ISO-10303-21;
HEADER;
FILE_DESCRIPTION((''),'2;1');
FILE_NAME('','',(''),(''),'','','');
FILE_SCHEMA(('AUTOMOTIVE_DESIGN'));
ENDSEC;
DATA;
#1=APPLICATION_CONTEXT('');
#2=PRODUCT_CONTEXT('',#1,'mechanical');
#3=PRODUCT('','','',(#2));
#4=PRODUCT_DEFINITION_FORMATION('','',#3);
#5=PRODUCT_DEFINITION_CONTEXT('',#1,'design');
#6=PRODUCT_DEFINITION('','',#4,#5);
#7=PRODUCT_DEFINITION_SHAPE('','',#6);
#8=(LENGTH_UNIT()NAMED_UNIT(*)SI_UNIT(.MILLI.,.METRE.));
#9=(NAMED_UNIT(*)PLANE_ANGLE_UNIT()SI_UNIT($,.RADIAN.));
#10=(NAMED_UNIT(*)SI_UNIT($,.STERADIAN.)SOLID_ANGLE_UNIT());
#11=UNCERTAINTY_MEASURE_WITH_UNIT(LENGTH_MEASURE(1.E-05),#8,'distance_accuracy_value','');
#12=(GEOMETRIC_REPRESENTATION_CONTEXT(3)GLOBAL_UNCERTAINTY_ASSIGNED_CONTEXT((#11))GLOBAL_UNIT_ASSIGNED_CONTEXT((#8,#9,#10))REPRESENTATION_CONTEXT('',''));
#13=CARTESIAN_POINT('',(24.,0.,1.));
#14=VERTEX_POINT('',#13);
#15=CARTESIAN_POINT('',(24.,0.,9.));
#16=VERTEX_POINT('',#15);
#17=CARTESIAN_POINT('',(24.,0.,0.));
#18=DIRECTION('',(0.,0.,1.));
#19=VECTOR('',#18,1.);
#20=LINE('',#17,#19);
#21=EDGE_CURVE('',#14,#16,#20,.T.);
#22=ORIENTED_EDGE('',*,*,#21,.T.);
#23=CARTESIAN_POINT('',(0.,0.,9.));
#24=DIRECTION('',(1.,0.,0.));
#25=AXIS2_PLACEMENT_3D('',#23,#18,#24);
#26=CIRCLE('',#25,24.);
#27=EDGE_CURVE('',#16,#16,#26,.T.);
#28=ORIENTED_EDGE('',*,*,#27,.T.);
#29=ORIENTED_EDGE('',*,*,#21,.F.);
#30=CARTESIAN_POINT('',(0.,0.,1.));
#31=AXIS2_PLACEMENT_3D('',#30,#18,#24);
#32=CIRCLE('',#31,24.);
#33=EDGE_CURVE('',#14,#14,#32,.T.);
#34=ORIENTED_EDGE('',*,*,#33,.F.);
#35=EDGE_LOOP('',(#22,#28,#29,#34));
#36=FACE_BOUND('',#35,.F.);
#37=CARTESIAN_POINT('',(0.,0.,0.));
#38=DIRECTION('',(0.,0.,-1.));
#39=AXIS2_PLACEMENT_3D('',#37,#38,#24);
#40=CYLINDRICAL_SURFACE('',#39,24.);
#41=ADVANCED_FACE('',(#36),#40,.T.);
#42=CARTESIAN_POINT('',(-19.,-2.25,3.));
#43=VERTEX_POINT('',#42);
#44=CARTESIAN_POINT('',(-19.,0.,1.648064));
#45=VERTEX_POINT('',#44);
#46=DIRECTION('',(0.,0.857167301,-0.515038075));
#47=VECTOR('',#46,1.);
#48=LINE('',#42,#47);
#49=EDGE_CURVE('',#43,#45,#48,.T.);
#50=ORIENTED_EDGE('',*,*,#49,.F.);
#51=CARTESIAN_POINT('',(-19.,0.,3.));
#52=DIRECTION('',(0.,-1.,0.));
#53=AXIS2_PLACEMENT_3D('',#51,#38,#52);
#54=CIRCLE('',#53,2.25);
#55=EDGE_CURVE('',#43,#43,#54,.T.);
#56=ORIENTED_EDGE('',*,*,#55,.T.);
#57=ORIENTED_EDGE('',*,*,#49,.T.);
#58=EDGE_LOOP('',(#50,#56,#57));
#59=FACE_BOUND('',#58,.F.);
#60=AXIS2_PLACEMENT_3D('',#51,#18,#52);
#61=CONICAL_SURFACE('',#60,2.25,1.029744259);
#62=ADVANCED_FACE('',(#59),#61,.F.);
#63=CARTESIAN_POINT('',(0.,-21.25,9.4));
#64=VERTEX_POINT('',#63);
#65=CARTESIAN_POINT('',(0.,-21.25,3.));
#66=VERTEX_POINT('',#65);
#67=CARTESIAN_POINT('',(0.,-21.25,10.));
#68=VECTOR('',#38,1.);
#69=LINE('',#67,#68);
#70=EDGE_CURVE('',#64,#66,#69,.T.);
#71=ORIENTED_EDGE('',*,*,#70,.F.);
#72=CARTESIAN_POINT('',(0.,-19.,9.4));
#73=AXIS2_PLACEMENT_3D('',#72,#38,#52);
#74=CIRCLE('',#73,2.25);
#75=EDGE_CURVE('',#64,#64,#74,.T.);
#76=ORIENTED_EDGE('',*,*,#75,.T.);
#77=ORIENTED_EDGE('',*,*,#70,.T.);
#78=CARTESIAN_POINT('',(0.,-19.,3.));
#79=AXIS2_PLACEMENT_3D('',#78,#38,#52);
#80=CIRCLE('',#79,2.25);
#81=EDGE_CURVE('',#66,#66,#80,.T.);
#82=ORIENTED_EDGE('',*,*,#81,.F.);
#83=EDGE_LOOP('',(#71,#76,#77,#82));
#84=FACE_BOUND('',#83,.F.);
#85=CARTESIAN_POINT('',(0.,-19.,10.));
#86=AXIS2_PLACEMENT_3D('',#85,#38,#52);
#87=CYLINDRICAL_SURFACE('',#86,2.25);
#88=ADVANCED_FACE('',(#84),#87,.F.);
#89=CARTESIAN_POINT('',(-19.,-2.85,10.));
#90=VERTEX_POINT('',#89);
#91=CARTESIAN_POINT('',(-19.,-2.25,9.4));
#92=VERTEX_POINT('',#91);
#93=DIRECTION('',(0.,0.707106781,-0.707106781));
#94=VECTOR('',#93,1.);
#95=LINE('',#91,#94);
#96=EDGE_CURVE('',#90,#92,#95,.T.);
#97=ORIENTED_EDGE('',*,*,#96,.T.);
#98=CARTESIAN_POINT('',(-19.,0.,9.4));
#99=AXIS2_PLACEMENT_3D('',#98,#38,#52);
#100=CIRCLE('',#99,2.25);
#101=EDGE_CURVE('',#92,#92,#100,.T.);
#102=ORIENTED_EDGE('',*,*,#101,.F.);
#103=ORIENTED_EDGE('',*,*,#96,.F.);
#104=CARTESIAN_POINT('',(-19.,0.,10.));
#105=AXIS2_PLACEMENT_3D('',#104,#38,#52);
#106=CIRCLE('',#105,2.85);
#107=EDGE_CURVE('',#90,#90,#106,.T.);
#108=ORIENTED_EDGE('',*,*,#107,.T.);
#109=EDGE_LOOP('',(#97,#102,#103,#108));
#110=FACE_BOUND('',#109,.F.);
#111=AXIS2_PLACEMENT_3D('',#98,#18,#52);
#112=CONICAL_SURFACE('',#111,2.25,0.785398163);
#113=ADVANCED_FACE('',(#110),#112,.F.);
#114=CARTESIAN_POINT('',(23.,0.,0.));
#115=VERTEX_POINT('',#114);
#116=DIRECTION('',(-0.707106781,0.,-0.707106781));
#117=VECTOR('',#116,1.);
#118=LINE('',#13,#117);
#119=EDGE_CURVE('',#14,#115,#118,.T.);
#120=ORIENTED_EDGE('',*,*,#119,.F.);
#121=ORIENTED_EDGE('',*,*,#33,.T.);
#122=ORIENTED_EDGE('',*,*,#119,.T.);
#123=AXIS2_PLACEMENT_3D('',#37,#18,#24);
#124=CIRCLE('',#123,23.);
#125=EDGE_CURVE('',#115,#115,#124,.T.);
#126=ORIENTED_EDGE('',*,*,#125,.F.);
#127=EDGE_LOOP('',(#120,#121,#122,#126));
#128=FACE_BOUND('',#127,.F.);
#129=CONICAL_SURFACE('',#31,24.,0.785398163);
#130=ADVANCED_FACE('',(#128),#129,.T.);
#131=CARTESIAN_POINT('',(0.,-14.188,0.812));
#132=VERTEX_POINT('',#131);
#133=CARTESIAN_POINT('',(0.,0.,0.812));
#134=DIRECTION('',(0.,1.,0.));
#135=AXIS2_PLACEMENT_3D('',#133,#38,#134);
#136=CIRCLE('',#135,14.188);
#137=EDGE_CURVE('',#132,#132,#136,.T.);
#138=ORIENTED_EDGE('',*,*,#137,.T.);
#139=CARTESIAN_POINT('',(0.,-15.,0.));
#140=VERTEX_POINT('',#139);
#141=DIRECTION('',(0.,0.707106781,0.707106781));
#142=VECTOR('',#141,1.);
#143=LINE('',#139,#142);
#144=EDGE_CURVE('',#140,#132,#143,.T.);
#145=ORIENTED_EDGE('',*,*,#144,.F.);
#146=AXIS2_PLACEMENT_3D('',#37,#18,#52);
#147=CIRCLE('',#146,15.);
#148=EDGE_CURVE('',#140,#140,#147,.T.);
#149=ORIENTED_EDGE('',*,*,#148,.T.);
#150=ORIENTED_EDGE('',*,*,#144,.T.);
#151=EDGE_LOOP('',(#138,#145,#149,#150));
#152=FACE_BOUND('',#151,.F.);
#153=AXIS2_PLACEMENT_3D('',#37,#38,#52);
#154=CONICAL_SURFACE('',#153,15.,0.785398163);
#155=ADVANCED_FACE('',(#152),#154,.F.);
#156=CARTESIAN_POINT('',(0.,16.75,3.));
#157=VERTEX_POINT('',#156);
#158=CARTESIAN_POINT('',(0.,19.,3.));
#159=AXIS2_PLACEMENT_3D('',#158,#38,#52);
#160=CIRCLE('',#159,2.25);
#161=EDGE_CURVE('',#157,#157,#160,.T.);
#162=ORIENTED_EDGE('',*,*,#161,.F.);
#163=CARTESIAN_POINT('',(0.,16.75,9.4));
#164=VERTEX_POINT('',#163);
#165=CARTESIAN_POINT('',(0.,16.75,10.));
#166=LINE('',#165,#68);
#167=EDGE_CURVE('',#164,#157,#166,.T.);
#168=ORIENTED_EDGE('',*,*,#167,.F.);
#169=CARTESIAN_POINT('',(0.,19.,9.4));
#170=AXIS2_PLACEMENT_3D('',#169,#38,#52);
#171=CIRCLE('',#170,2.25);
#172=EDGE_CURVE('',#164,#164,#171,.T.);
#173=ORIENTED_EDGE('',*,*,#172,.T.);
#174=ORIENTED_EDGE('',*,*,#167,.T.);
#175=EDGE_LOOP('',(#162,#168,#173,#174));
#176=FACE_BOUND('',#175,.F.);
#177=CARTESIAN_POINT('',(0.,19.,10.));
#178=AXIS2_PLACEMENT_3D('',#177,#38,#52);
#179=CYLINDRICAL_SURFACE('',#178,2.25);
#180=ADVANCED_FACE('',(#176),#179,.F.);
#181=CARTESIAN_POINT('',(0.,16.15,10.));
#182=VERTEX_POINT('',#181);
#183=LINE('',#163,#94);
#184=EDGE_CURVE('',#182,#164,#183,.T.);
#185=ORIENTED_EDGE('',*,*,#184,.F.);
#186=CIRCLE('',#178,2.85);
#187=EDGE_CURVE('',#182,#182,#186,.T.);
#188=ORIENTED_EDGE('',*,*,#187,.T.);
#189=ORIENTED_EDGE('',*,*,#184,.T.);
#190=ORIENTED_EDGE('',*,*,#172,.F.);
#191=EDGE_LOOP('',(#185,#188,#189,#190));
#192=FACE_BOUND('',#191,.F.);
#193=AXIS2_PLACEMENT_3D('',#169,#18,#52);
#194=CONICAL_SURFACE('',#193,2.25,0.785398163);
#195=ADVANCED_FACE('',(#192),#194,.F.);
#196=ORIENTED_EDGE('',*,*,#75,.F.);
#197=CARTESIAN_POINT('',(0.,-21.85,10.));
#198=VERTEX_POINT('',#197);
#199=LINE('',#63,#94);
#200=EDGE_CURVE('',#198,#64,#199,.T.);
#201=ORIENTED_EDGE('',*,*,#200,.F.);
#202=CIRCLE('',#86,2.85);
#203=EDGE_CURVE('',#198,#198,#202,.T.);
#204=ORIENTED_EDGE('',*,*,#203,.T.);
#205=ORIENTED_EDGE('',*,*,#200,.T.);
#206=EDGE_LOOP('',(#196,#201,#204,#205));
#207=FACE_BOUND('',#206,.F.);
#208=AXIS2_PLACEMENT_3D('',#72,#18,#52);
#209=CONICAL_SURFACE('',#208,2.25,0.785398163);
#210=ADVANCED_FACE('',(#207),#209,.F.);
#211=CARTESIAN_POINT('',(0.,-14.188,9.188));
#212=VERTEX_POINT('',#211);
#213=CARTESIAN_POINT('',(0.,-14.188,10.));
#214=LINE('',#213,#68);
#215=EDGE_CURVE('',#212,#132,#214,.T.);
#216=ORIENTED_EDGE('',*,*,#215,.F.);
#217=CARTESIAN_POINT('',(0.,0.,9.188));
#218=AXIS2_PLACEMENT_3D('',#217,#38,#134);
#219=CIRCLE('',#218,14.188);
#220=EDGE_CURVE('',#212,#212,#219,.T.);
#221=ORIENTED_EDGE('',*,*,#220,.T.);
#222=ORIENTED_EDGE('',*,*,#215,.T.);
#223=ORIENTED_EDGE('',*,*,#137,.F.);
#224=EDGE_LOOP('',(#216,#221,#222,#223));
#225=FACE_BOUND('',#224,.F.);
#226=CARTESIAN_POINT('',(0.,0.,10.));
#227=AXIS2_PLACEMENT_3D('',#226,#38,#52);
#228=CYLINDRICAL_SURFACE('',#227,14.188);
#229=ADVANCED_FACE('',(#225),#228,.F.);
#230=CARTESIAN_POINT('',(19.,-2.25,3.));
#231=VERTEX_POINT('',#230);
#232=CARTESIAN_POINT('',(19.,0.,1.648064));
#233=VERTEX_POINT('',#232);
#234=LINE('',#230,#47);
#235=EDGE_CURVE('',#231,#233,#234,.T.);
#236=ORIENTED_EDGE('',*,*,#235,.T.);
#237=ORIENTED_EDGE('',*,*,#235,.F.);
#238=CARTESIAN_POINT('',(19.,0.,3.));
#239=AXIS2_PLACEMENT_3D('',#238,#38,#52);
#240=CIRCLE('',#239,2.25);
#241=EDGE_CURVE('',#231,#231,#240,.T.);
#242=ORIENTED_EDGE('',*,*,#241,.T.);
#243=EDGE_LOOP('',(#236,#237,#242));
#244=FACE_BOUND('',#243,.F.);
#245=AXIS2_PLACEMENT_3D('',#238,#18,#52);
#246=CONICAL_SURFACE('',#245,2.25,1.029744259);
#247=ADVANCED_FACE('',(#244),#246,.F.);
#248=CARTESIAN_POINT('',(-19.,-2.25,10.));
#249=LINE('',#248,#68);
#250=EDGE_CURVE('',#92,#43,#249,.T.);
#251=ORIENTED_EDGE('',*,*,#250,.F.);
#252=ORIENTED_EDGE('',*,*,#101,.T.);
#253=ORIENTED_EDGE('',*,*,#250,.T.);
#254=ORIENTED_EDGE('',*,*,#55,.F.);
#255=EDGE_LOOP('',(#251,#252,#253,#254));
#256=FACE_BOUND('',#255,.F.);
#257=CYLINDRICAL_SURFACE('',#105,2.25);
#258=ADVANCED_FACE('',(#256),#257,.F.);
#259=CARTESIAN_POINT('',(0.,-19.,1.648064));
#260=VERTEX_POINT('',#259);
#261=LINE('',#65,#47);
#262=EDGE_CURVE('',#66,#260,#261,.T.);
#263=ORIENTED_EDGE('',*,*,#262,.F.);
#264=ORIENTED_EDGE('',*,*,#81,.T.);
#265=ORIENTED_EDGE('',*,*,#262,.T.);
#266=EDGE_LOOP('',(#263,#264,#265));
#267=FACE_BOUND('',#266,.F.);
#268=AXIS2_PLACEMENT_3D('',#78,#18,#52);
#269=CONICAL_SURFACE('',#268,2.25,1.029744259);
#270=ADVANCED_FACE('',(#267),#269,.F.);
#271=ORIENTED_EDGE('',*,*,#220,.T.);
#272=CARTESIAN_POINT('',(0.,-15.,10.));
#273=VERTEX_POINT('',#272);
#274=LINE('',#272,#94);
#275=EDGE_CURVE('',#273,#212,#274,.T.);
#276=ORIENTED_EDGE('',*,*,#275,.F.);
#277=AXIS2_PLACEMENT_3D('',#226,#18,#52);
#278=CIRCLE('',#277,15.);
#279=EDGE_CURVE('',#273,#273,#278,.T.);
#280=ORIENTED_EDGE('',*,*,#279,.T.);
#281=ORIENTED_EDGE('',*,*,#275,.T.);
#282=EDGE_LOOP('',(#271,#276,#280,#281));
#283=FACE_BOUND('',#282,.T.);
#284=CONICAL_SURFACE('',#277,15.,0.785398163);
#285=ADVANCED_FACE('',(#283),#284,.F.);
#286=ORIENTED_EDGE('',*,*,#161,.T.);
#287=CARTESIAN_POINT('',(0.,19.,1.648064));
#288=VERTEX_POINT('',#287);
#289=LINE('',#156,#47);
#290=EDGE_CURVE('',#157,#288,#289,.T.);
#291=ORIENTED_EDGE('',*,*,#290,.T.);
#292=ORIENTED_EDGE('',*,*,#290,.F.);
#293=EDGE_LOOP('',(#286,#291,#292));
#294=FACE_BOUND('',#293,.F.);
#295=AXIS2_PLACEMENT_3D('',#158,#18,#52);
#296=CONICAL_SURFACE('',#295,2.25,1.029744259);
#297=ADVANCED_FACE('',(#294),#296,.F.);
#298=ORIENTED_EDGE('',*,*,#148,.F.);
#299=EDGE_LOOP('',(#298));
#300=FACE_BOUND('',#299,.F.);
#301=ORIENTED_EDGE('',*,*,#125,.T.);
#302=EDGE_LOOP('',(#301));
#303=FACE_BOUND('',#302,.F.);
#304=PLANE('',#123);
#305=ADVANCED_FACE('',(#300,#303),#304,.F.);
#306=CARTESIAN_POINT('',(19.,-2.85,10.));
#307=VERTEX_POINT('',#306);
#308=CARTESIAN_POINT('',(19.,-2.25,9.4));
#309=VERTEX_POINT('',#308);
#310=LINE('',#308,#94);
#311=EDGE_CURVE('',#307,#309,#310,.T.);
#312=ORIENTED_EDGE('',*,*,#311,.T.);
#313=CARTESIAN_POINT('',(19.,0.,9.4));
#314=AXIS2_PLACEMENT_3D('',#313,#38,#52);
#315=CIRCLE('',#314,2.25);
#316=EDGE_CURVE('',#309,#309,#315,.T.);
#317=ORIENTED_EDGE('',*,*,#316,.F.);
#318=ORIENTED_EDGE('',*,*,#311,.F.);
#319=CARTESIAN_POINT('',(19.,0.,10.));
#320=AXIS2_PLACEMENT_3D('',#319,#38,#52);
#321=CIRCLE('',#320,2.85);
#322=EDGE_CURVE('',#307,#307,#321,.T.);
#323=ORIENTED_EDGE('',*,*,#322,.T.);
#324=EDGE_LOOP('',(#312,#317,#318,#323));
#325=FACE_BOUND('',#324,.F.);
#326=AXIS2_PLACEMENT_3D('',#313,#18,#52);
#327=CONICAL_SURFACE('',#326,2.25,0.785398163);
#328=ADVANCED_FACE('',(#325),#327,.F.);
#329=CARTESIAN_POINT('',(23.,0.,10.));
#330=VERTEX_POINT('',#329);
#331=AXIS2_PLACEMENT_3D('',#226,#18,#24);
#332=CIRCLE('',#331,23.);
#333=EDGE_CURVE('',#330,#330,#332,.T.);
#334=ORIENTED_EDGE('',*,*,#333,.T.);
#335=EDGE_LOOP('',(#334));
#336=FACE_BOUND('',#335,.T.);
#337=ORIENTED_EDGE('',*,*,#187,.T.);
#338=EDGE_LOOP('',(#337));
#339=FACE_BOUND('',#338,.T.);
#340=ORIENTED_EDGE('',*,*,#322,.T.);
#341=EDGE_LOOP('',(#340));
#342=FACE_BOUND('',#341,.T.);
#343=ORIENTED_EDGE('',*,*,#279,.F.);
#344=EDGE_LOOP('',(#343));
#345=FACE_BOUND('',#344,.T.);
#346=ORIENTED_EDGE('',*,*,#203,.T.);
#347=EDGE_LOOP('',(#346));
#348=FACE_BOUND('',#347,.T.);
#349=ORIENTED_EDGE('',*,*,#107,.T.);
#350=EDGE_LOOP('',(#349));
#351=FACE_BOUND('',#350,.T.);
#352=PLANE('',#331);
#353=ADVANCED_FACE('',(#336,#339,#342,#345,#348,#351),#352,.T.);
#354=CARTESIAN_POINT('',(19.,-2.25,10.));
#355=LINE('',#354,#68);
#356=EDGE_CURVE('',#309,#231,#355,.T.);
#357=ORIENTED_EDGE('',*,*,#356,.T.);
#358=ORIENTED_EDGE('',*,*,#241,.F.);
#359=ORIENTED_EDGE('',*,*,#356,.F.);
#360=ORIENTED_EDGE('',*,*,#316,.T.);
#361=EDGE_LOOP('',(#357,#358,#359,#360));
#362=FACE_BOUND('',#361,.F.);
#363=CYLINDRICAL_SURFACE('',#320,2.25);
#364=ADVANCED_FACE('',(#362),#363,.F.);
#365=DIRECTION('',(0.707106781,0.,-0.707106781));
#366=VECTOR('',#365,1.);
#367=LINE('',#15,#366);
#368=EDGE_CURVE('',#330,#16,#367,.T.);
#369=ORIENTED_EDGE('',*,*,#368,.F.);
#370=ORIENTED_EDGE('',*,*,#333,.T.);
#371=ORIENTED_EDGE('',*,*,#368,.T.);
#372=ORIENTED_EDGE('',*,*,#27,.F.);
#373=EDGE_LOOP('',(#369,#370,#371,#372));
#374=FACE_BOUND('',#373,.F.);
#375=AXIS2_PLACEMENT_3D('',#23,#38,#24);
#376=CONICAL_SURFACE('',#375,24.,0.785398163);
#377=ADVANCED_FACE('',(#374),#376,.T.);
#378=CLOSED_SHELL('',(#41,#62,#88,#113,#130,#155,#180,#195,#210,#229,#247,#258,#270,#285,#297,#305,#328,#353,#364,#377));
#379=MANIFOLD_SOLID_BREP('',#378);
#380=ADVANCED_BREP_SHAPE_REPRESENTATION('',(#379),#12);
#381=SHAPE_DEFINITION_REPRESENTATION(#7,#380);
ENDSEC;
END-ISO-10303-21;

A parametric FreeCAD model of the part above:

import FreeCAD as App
import Part
import Sketcher


def edges_at(feature, points):
    """Names of the edges that pass closest to the given points."""
    edges = feature.Shape.Edges
    near = lambda p: min(range(len(edges)), key=lambda i: edges[i].distToShape(Part.Vertex(*p))[0])
    return sorted({f"Edge{near(p) + 1}" for p in points})

doc = App.newDocument("Part")
body = doc.addObject("PartDesign::Body", "Body")

# Sketch on XY plane
sketch1 = body.newObject("Sketcher::SketchObject", "Sketch")
sketch1.AttachmentSupport = (doc.getObject("XY_Plane"), [""])
sketch1.MapMode = "FlatFace"
sketch1.addGeometry(Part.Circle(App.Vector(0, 0, 0), App.Vector(0, 0, 1), 24), False)
sketch1.addConstraint([
    Sketcher.Constraint("Coincident", 0, 3, -1, 1),
    Sketcher.Constraint("Diameter", 0, 48.0),
])
pad1 = body.newObject("PartDesign::Pad", "Pad")
pad1.Profile = sketch1
pad1.Length = 10

# Sketch on XY plane
sketch2 = body.newObject("Sketcher::SketchObject", "Sketch001")
sketch2.AttachmentSupport = (doc.getObject("XY_Plane"), [""])
sketch2.MapMode = "FlatFace"
sketch2.AttachmentOffset = App.Placement(App.Vector(0, 0, 10), App.Rotation())
sketch2.addGeometry(Part.Circle(App.Vector(0, 0, 0), App.Vector(0, 0, 1), 14), False)
sketch2.addConstraint([
    Sketcher.Constraint("Coincident", 0, 3, -1, 1),
    Sketcher.Constraint("Diameter", 0, 28.376),
])
doc.recompute()
hole = body.newObject("PartDesign::Hole", "Hole")
hole.Profile = sketch2
hole.ThreadType = "None"
hole.Diameter = 28.376
hole.DepthType = "ThroughAll"

# Sketch on XY plane
sketch3 = body.newObject("Sketcher::SketchObject", "Sketch002")
sketch3.AttachmentSupport = (doc.getObject("XY_Plane"), [""])
sketch3.MapMode = "FlatFace"
sketch3.AttachmentOffset = App.Placement(App.Vector(0, 0, 10), App.Rotation())
sketch3.addGeometry([
    Part.Circle(App.Vector(-19, 0, 0), App.Vector(0, 0, 1), 2.2),
    Part.Circle(App.Vector(0, 19, 0), App.Vector(0, 0, 1), 2.2),
    Part.Circle(App.Vector(19, 0, 0), App.Vector(0, 0, 1), 2.2),
    Part.Circle(App.Vector(0, -19, 0), App.Vector(0, 0, 1), 2.2),
], False)
sketch3.addConstraint([
    Sketcher.Constraint("Equal", 0, 1),
    Sketcher.Constraint("Equal", 1, 2),
    Sketcher.Constraint("Equal", 2, 3),
    Sketcher.Constraint("Symmetric", 0, 3, 2, 3, -1, 1),
    Sketcher.Constraint("Symmetric", 1, 3, 3, 3, -1, 1),
    Sketcher.Constraint("PointOnObject", 0, 3, -1),
    Sketcher.Constraint("PointOnObject", 1, 3, -2),
    Sketcher.Constraint("Diameter", 0, 4.5),
    Sketcher.Constraint("DistanceX", 0, 3, -1, 1, 19.0),
    Sketcher.Constraint("DistanceY", -1, 1, 1, 3, 19.0),
])
doc.recompute()
hole2 = body.newObject("PartDesign::Hole", "Hole001")
hole2.Profile = sketch3
hole2.ThreadType = "None"
hole2.Diameter = 4.5
hole2.DepthType = "Dimension"
hole2.Depth = 7
hole2.DrillPoint = "Angled"
hole2.DrillPointAngle = 118
doc.recompute()

chamfer = body.newObject("PartDesign::Chamfer", "Chamfer")
chamfer.Base = (hole2, edges_at(hole2, [
    (0, -16.75, 10),
    (-19, 2.25, 10),
    (19, 2.25, 10),
    (0, 21.25, 10),
]))
chamfer.Size = 0.6
doc.recompute()

chamfer2 = body.newObject("PartDesign::Chamfer", "Chamfer001")
chamfer2.Base = (chamfer, edges_at(chamfer, [(-24, 0, 10), (-24, 0, 0)]))
chamfer2.Size = 1

# Sketch on YZ plane
sketch4 = body.newObject("Sketcher::SketchObject", "Sketch003")
sketch4.AttachmentSupport = (doc.getObject("YZ_Plane"), [""])
sketch4.MapMode = "FlatFace"
sketch4.addGeometry([
    Part.LineSegment(App.Vector(-5, 10, 0), App.Vector(-15, 10, 0)),  # 0
    Part.LineSegment(App.Vector(-15, 10, 0), App.Vector(-10, 5, 0)),  # 1
    Part.LineSegment(App.Vector(-10, 5, 0), App.Vector(-15, 0, 0)),  # 2
    Part.LineSegment(App.Vector(-15, 0, 0), App.Vector(-5, 0, 0)),  # 3
    Part.LineSegment(App.Vector(-5, 0, 0), App.Vector(0, -5, 0)),  # 4
    Part.LineSegment(App.Vector(0, -5, 0), App.Vector(0, 15, 0)),  # 5
    Part.LineSegment(App.Vector(0, 15, 0), App.Vector(-5, 10, 0)),  # 6
], False)
sketch4.addConstraint([
    Sketcher.Constraint("Coincident", 0, 2, 1, 1),
    Sketcher.Constraint("Coincident", 1, 2, 2, 1),
    Sketcher.Constraint("Coincident", 2, 2, 3, 1),
    Sketcher.Constraint("Coincident", 3, 2, 4, 1),
    Sketcher.Constraint("Coincident", 4, 2, 5, 1),
    Sketcher.Constraint("Coincident", 5, 2, 6, 1),
    Sketcher.Constraint("Coincident", 6, 2, 0, 1),
    Sketcher.Constraint("Horizontal", 0),
    Sketcher.Constraint("Horizontal", 3),
    Sketcher.Constraint("Vertical", 5),
    Sketcher.Constraint("PointOnObject", 2, 2, -1),
    Sketcher.Constraint("PointOnObject", 4, 2, -2),
    Sketcher.Constraint("Perpendicular", 1, 2),
    Sketcher.Constraint("Perpendicular", 2, 4),
    Sketcher.Constraint("Perpendicular", 4, 6),
    Sketcher.Constraint("Vertical", 0, 2, 2, 2),
    Sketcher.Constraint("Vertical", 3, 2, 6, 2),
    Sketcher.Constraint("Equal", 1, 2),
    Sketcher.Constraint("Equal", 2, 4),
    Sketcher.Constraint("DistanceX", 0, 2, 0, 1, 10.0),
    Sketcher.Constraint("DistanceY", -1, 1, 0, 2, 10.0),
])
groove = body.newObject("PartDesign::Groove", "Groove")
groove.Profile = sketch4
groove.ReferenceAxis = (sketch4, ["V_Axis"])
groove.Angle = 360

doc.recompute()
